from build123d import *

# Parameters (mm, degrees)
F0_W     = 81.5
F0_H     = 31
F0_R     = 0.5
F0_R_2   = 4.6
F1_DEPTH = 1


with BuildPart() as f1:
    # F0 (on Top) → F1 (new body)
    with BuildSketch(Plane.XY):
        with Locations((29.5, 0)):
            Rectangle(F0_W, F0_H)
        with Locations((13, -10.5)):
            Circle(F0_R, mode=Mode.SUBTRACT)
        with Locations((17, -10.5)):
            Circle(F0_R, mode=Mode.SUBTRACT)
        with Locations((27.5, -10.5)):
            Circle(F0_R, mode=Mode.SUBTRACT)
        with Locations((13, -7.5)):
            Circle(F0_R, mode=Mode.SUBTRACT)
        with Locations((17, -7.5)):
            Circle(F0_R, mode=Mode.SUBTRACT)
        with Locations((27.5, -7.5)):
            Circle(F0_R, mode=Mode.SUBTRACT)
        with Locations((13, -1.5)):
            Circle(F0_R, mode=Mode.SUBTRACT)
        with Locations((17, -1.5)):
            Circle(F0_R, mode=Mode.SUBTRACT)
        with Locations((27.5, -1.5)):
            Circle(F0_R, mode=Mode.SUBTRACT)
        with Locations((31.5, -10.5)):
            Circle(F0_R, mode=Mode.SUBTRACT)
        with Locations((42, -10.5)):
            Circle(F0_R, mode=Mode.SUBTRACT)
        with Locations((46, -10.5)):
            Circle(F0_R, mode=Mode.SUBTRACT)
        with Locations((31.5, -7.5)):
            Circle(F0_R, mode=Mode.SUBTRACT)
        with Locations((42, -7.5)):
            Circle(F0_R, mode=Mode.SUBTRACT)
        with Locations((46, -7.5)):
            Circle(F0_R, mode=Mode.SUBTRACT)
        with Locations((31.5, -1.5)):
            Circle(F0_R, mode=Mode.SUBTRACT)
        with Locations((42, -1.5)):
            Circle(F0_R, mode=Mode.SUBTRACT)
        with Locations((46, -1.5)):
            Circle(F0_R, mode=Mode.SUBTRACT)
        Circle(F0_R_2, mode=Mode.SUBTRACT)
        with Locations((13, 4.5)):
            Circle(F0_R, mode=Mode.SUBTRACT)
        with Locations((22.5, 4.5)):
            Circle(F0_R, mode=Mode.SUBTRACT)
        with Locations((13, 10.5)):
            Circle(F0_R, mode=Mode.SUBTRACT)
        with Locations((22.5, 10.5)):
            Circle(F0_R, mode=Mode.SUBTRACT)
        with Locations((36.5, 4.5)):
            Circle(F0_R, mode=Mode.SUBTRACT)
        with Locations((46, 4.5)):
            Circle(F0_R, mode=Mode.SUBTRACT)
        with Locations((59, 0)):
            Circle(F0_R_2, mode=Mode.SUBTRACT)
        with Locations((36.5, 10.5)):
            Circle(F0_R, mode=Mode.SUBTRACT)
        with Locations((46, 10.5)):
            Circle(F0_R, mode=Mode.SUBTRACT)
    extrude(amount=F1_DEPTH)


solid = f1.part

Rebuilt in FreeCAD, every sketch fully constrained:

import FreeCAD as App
import Part
import Sketcher

doc = App.newDocument("Part")
body = doc.addObject("PartDesign::Body", "Body")

# Sketch on XY plane
sketch1 = body.newObject("Sketcher::SketchObject", "Sketch")
sketch1.AttachmentSupport = (doc.getObject("XY_Plane"), [""])
sketch1.MapMode = "FlatFace"
sketch1.addGeometry([
    Part.LineSegment(App.Vector(-11.2, 15.5, 0), App.Vector(-11.2, -15.5, 0)),  # 0
    Part.LineSegment(App.Vector(-11.2, -15.5, 0), App.Vector(70.2, -15.5, 0)),  # 1
    Part.LineSegment(App.Vector(70.2, -15.5, 0), App.Vector(70.2, 15.5, 0)),  # 2
    Part.LineSegment(App.Vector(70.2, 15.5, 0), App.Vector(-11.2, 15.5, 0)),  # 3
    Part.Circle(App.Vector(13, -10.5, 0), App.Vector(0, 0, 1), 0.5),  # 4
    Part.Circle(App.Vector(17, -10.5, 0), App.Vector(0, 0, 1), 0.5),  # 5
    Part.Circle(App.Vector(27.5, -10.5, 0), App.Vector(0, 0, 1), 0.5),  # 6
    Part.Circle(App.Vector(13, -7.5, 0), App.Vector(0, 0, 1), 0.5),  # 7
    Part.Circle(App.Vector(17, -7.5, 0), App.Vector(0, 0, 1), 0.5),  # 8
    Part.Circle(App.Vector(27.5, -7.5, 0), App.Vector(0, 0, 1), 0.5),  # 9
    Part.Circle(App.Vector(13, -1.5, 0), App.Vector(0, 0, 1), 0.5),  # 10
    Part.Circle(App.Vector(17, -1.5, 0), App.Vector(0, 0, 1), 0.5),  # 11
    Part.Circle(App.Vector(27.5, -1.5, 0), App.Vector(0, 0, 1), 0.5),  # 12
    Part.Circle(App.Vector(31.5, -10.5, 0), App.Vector(0, 0, 1), 0.5),  # 13
    Part.Circle(App.Vector(42, -10.5, 0), App.Vector(0, 0, 1), 0.5),  # 14
    Part.Circle(App.Vector(46, -10.5, 0), App.Vector(0, 0, 1), 0.5),  # 15
    Part.Circle(App.Vector(31.5, -7.5, 0), App.Vector(0, 0, 1), 0.5),  # 16
    Part.Circle(App.Vector(42, -7.5, 0), App.Vector(0, 0, 1), 0.5),  # 17
    Part.Circle(App.Vector(46, -7.5, 0), App.Vector(0, 0, 1), 0.5),  # 18
    Part.Circle(App.Vector(31.5, -1.5, 0), App.Vector(0, 0, 1), 0.5),  # 19
    Part.Circle(App.Vector(42, -1.5, 0), App.Vector(0, 0, 1), 0.5),  # 20
    Part.Circle(App.Vector(46, -1.5, 0), App.Vector(0, 0, 1), 0.5),  # 21
    Part.Circle(App.Vector(0, 0, 0), App.Vector(0, 0, 1), 4.6),  # 22
    Part.Circle(App.Vector(13, 4.5, 0), App.Vector(0, 0, 1), 0.5),  # 23
    Part.Circle(App.Vector(22.5, 4.5, 0), App.Vector(0, 0, 1), 0.5),  # 24
    Part.Circle(App.Vector(13, 10.5, 0), App.Vector(0, 0, 1), 0.5),  # 25
    Part.Circle(App.Vector(22.5, 10.5, 0), App.Vector(0, 0, 1), 0.5),  # 26
    Part.Circle(App.Vector(36.5, 4.5, 0), App.Vector(0, 0, 1), 0.5),  # 27
    Part.Circle(App.Vector(46, 4.5, 0), App.Vector(0, 0, 1), 0.5),  # 28
    Part.Circle(App.Vector(59, 0, 0), App.Vector(0, 0, 1), 4.6),  # 29
    Part.Circle(App.Vector(36.5, 10.5, 0), App.Vector(0, 0, 1), 0.5),  # 30
    Part.Circle(App.Vector(46, 10.5, 0), App.Vector(0, 0, 1), 0.5),  # 31
], False)
sketch1.addConstraint([
    Sketcher.Constraint("Coincident", 0, 2, 1, 1),
    Sketcher.Constraint("Coincident", 1, 2, 2, 1),
    Sketcher.Constraint("Coincident", 2, 2, 3, 1),
    Sketcher.Constraint("Coincident", 3, 2, 0, 1),
    Sketcher.Constraint("Vertical", 0),
    Sketcher.Constraint("Horizontal", 1),
    Sketcher.Constraint("Vertical", 2),
    Sketcher.Constraint("Horizontal", 3),
    Sketcher.Constraint("Coincident", 22, 3, -1, 1),
    Sketcher.Constraint("Equal", 4, 5),
    Sketcher.Constraint("Equal", 5, 6),
    Sketcher.Constraint("Equal", 6, 7),
    Sketcher.Constraint("Equal", 7, 8),
    Sketcher.Constraint("Equal", 8, 9),
    Sketcher.Constraint("Equal", 9, 10),
    Sketcher.Constraint("Equal", 10, 11),
    Sketcher.Constraint("Equal", 11, 12),
    Sketcher.Constraint("Equal", 12, 13),
    Sketcher.Constraint("Equal", 13, 14),
    Sketcher.Constraint("Equal", 14, 15),
    Sketcher.Constraint("Equal", 15, 16),
    Sketcher.Constraint("Equal", 16, 17),
    Sketcher.Constraint("Equal", 17, 18),
    Sketcher.Constraint("Equal", 18, 19),
    Sketcher.Constraint("Equal", 19, 20),
    Sketcher.Constraint("Equal", 20, 21),
    Sketcher.Constraint("Equal", 21, 23),
    Sketcher.Constraint("Equal", 23, 24),
    Sketcher.Constraint("Equal", 24, 25),
    Sketcher.Constraint("Equal", 25, 26),
    Sketcher.Constraint("Equal", 26, 27),
    Sketcher.Constraint("Equal", 27, 28),
    Sketcher.Constraint("Equal", 22, 29),
    Sketcher.Constraint("Equal", 28, 30),
    Sketcher.Constraint("Equal", 30, 31),
    Sketcher.Constraint("Symmetric", 4, 3, 25, 3, -1),
    Sketcher.Constraint("Symmetric", 15, 3, 31, 3, -1),
    Sketcher.Constraint("PointOnObject", 29, 3, -1),
    Sketcher.Constraint("Horizontal", 4, 3, 5, 3),
    Sketcher.Constraint("Horizontal", 5, 3, 6, 3),
    Sketcher.Constraint("Horizontal", 7, 3, 8, 3),
    Sketcher.Constraint("Horizontal", 8, 3, 9, 3),
    Sketcher.Constraint("Horizontal", 10, 3, 11, 3),
    Sketcher.Constraint("Horizontal", 11, 3, 12, 3),
    Sketcher.Constraint("Horizontal", 6, 3, 13, 3),
    Sketcher.Constraint("Horizontal", 13, 3, 14, 3),
    Sketcher.Constraint("Horizontal", 14, 3, 15, 3),
    Sketcher.Constraint("Horizontal", 9, 3, 16, 3),
    Sketcher.Constraint("Horizontal", 16, 3, 17, 3),
    Sketcher.Constraint("Horizontal", 17, 3, 18, 3),
    Sketcher.Constraint("Horizontal", 12, 3, 19, 3),
    Sketcher.Constraint("Horizontal", 19, 3, 20, 3),
    Sketcher.Constraint("Horizontal", 20, 3, 21, 3),
    Sketcher.Constraint("Horizontal", 23, 3, 24, 3),
    Sketcher.Constraint("Horizontal", 25, 3, 26, 3),
    Sketcher.Constraint("Horizontal", 24, 3, 27, 3),
    Sketcher.Constraint("Horizontal", 27, 3, 28, 3),
    Sketcher.Constraint("Horizontal", 26, 3, 30, 3),
    Sketcher.Constraint("Vertical", 4, 3, 7, 3),
    Sketcher.Constraint("Vertical", 5, 3, 8, 3),
    Sketcher.Constraint("Vertical", 6, 3, 9, 3),
    Sketcher.Constraint("Vertical", 7, 3, 10, 3),
    Sketcher.Constraint("Vertical", 8, 3, 11, 3),
    Sketcher.Constraint("Vertical", 9, 3, 12, 3),
    Sketcher.Constraint("Vertical", 13, 3, 16, 3),
    Sketcher.Constraint("Vertical", 14, 3, 17, 3),
    Sketcher.Constraint("Vertical", 15, 3, 18, 3),
    Sketcher.Constraint("Vertical", 16, 3, 19, 3),
    Sketcher.Constraint("Vertical", 17, 3, 20, 3),
    Sketcher.Constraint("Vertical", 18, 3, 21, 3),
    Sketcher.Constraint("Vertical", 10, 3, 23, 3),
    Sketcher.Constraint("Vertical", 24, 3, 26, 3),
    Sketcher.Constraint("Vertical", 21, 3, 28, 3),
    Sketcher.Constraint("Vertical", 27, 3, 30, 3),
    Sketcher.Constraint("Diameter", 4, 1.0),
    Sketcher.Constraint("Diameter", 22, 9.2),
    Sketcher.Constraint("DistanceY", 0, 2, 0, 1, 31.0),
    Sketcher.Constraint("DistanceX", 1, 1, 1, 2, 81.5),
    Sketcher.Constraint("DistanceX", -1, 1, 4, 3, 13.0),
    Sketcher.Constraint("DistanceX", -1, 1, 5, 3, 17.0),
    Sketcher.Constraint("DistanceX", -1, 1, 14, 3, 42.0),
    Sketcher.Constraint("DistanceX", -1, 1, 15, 3, 46.0),
    Sketcher.Constraint("DistanceX", -1, 1, 29, 3, 59.0),
    Sketcher.Constraint("DistanceY", 4, 3, 7, 3, 3.0),
    Sketcher.Constraint("DistanceY", 7, 3, 10, 3, 6.0),
    Sketcher.Constraint("DistanceX", 6, 3, 13, 3, 4.0),
    Sketcher.Constraint("DistanceY", 10, 3, 23, 3, 6.0),
    Sketcher.Constraint("DistanceX", 24, 3, 12, 3, 5.0),
    Sketcher.Constraint("DistanceY", 23, 3, 25, 3, 6.0),
    Sketcher.Constraint("DistanceX", 19, 3, 27, 3, 5.0),
    Sketcher.Constraint("DistanceY", 0, 2, 4, 3, 5.0),
    Sketcher.Constraint("DistanceX", -1, 1, 6, 3, 27.5),
    Sketcher.Constraint("DistanceX", 0, 2, -1, 1, 11.25),
])
pad1 = body.newObject("PartDesign::Pad", "Pad")
pad1.Profile = sketch1
pad1.Length = 1

doc.recompute()
